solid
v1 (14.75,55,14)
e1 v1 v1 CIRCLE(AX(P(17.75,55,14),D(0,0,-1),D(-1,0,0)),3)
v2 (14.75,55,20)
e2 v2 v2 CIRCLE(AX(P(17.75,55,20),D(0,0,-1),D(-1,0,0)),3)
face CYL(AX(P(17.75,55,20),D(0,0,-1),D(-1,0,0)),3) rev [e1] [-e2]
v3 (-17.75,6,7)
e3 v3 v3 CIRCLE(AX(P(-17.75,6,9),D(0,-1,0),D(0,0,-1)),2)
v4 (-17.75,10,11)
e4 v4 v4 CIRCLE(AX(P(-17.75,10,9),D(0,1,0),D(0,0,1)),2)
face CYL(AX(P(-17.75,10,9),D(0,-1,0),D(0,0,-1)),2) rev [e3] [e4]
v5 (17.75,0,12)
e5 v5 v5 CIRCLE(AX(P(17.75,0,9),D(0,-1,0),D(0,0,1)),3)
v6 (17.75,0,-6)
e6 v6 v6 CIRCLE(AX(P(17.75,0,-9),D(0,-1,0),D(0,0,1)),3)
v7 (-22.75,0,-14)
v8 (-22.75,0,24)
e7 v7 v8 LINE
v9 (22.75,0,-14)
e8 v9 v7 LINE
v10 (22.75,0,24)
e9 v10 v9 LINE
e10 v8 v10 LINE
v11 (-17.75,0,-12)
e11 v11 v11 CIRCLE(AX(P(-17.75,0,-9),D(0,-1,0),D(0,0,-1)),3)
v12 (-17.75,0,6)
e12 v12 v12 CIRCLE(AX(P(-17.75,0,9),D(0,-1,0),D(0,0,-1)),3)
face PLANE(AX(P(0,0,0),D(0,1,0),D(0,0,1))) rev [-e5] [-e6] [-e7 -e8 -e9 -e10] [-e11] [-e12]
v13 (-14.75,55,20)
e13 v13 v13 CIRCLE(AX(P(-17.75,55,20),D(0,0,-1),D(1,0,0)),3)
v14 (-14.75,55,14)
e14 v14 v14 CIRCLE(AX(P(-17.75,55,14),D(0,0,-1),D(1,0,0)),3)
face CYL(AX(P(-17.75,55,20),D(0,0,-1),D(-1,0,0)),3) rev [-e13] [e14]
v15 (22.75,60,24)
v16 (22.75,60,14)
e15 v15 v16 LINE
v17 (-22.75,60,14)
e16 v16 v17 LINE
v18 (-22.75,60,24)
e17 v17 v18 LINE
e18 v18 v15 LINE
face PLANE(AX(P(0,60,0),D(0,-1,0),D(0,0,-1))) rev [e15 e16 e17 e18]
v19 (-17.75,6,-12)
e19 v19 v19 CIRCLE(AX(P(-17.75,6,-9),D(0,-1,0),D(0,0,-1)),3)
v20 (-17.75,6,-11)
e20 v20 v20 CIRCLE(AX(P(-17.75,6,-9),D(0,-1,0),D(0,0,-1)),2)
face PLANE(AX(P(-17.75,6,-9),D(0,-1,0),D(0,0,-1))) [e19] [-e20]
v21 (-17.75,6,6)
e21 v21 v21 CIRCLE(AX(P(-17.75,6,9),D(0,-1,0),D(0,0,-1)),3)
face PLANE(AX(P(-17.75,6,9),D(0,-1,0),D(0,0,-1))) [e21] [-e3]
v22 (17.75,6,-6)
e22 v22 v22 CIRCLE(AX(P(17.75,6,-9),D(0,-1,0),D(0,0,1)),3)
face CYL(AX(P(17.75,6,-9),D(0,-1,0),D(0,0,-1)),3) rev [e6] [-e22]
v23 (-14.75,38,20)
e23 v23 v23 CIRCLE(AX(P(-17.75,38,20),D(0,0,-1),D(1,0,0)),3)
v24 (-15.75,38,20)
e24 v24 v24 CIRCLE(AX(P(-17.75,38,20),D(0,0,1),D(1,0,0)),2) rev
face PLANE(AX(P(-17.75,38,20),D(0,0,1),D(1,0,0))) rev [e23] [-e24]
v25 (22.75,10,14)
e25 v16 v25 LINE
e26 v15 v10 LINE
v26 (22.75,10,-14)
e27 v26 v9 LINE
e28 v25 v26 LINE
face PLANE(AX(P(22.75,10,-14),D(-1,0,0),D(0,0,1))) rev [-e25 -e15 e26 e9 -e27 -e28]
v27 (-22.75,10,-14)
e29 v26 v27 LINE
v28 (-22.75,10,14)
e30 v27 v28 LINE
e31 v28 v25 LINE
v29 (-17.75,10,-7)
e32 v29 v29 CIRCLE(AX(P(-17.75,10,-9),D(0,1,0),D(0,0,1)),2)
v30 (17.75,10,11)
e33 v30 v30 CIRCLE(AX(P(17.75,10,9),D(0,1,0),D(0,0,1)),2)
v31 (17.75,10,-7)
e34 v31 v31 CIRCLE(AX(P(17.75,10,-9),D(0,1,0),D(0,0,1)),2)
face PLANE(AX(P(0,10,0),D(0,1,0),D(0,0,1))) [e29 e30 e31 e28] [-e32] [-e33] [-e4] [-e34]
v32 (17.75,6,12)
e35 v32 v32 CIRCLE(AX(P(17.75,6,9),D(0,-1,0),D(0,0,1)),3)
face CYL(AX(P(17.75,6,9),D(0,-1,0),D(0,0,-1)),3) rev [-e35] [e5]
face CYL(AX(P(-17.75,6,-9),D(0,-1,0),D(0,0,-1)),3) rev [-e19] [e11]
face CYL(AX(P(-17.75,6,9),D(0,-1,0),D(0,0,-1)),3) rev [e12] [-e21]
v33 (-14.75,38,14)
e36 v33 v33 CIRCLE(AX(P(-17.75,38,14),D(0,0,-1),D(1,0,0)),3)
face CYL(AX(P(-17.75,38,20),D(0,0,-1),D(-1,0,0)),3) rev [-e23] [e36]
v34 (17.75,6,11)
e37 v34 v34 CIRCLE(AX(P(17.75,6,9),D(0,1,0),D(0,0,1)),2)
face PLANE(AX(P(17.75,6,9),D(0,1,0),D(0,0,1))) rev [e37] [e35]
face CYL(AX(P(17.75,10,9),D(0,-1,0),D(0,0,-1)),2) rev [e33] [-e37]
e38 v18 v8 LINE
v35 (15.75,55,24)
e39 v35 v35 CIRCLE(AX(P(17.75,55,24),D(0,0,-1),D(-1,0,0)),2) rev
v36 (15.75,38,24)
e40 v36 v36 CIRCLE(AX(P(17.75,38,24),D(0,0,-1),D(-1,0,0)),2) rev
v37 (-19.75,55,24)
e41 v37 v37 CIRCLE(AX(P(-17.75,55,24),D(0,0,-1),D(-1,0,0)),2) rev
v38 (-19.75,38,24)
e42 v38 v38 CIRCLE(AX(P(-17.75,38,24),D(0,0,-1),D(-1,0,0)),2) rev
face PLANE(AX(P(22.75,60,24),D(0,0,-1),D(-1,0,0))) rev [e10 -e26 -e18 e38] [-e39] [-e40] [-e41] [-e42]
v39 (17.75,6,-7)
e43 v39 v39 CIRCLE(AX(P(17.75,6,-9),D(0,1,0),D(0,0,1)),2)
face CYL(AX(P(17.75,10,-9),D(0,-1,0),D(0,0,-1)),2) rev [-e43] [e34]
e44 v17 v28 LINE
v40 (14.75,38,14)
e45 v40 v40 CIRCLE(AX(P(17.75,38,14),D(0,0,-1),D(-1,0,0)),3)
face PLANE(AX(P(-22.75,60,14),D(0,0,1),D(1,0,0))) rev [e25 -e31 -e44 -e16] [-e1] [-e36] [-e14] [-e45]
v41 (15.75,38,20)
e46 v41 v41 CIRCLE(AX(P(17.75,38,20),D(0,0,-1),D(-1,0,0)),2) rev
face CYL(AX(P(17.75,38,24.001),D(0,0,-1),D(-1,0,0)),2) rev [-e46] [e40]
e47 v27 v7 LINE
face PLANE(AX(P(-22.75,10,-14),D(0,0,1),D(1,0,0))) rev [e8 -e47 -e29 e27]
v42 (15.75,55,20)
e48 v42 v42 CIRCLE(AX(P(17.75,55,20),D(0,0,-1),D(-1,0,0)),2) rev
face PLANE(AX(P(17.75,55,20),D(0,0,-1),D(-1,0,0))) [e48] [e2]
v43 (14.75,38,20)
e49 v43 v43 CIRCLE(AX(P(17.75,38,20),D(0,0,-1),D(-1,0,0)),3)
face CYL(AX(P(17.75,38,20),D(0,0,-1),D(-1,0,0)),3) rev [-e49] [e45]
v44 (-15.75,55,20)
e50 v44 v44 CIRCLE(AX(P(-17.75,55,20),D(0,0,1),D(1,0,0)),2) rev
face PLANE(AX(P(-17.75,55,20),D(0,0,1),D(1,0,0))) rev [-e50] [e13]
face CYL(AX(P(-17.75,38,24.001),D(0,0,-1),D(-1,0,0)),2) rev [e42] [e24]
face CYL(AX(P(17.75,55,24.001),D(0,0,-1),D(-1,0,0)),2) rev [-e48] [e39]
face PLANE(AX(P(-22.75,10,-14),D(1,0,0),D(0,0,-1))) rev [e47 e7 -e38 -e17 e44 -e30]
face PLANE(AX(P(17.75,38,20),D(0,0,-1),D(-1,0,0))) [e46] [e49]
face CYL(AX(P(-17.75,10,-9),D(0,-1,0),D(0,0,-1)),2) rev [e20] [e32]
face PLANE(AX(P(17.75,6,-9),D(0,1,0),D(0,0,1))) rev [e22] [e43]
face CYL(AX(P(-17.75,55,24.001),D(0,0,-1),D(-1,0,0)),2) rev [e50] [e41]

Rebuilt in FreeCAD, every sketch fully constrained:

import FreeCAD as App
import Part
import Sketcher
from FreeCAD import Vector

doc = App.newDocument("Part")
body = doc.addObject("PartDesign::Body", "Body")

sketch1 = body.newObject("Sketcher::SketchObject", "Sketch")
sketch1.AttachmentSupport = (doc.getObject("XZ_Plane"), [""])
sketch1.MapMode = "FlatFace"
sketch1.addGeometry(Part.LineSegment(Vector(22.8, -14, 0), Vector(-22.8, -14, 0)), False)
sketch1.addGeometry(Part.LineSegment(Vector(-22.8, -14, 0), Vector(-22.8, 14, 0)), False)
sketch1.addGeometry(Part.LineSegment(Vector(-22.8, 14, 0), Vector(22.8, 14, 0)), False)
sketch1.addGeometry(Part.LineSegment(Vector(22.8, 14, 0), Vector(22.8, -14, 0)), False)
sketch1.addGeometry(Part.Circle(Vector(17.8, 9, 0), Vector(0, 0, 1), 2), False)
sketch1.addGeometry(Part.Circle(Vector(-17.8, 9, 0), Vector(0, 0, 1), 2), False)
sketch1.addGeometry(Part.Circle(Vector(17.8, -9, 0), Vector(0, 0, 1), 2), False)
sketch1.addGeometry(Part.Circle(Vector(-17.8, -9, 0), Vector(0, 0, 1), 2), False)
sketch1.addConstraint(Sketcher.Constraint("Coincident", 0, 2, 1, 1))
sketch1.addConstraint(Sketcher.Constraint("Coincident", 1, 2, 2, 1))
sketch1.addConstraint(Sketcher.Constraint("Coincident", 2, 2, 3, 1))
sketch1.addConstraint(Sketcher.Constraint("Coincident", 3, 2, 0, 1))
sketch1.addConstraint(Sketcher.Constraint("Horizontal", 0))
sketch1.addConstraint(Sketcher.Constraint("Vertical", 1))
sketch1.addConstraint(Sketcher.Constraint("Horizontal", 2))
sketch1.addConstraint(Sketcher.Constraint("Vertical", 3))
sketch1.addConstraint(Sketcher.Constraint("Equal", 4, 5))
sketch1.addConstraint(Sketcher.Constraint("Equal", 5, 6))
sketch1.addConstraint(Sketcher.Constraint("Equal", 6, 7))
sketch1.addConstraint(Sketcher.Constraint("Symmetric", 5, 3, 6, 3, -1, 1))
sketch1.addConstraint(Sketcher.Constraint("Symmetric", 4, 3, 7, 3, -1, 1))
sketch1.addConstraint(Sketcher.Constraint("Symmetric", 0, 2, 2, 2, -1, 1))
sketch1.addConstraint(Sketcher.Constraint("Symmetric", 4, 3, 5, 3, -2))
sketch1.addConstraint(Sketcher.Constraint("Diameter", 4, 4.0))
sketch1.addConstraint(Sketcher.Constraint("DistanceY", 1, 1, 1, 2, 28.0))
sketch1.addConstraint(Sketcher.Constraint("DistanceX", 0, 2, 0, 1, 45.5))
sketch1.addConstraint(Sketcher.Constraint("DistanceY", -1, 1, 4, 3, 9.0))
sketch1.addConstraint(Sketcher.Constraint("DistanceX", 0, 2, 7, 3, 5.0))
pad1 = body.newObject("PartDesign::Pad", "Pad")
pad1.Profile = sketch1
pad1.Length = 10
pad1.Reversed = True

sketch2 = body.newObject("Sketcher::SketchObject", "Sketch001")
sketch2.AttachmentSupport = (doc.getObject("XZ_Plane"), [""])
sketch2.MapMode = "FlatFace"
sketch2.addGeometry(Part.Circle(Vector(-17.8, 9, 0), Vector(0, 0, 1), 3), False)
sketch2.addGeometry(Part.Circle(Vector(-17.8, -9, 0), Vector(0, 0, 1), 3), False)
sketch2.addGeometry(Part.Circle(Vector(17.8, -9, 0), Vector(0, 0, 1), 3), False)
sketch2.addGeometry(Part.Circle(Vector(17.8, 9, 0), Vector(0, 0, 1), 3), False)
sketch2.addConstraint(Sketcher.Constraint("Equal", 0, 1))
sketch2.addConstraint(Sketcher.Constraint("Equal", 1, 2))
sketch2.addConstraint(Sketcher.Constraint("Equal", 2, 3))
sketch2.addConstraint(Sketcher.Constraint("Symmetric", 0, 3, 2, 3, -1, 1))
sketch2.addConstraint(Sketcher.Constraint("Symmetric", 1, 3, 3, 3, -1, 1))
sketch2.addConstraint(Sketcher.Constraint("Symmetric", 1, 3, 2, 3, -2))
sketch2.addConstraint(Sketcher.Constraint("Diameter", 0, 6.0))
sketch2.addConstraint(Sketcher.Constraint("DistanceY", -1, 1, 0, 3, 9.0))
sketch2.addConstraint(Sketcher.Constraint("DistanceX", 1, 3, 2, 3, 35.5))
pocket1 = body.newObject("PartDesign::Pocket", "Pocket")
pocket1.Profile = sketch2
pocket1.Length = 6

sketch3 = body.newObject("Sketcher::SketchObject", "Sketch002")
sketch3.AttachmentSupport = (doc.getObject("XZ_Plane"), [""])
sketch3.MapMode = "FlatFace"
sketch3.addGeometry(Part.LineSegment(Vector(-23, 14, 0), Vector(-23, 24, 0)), False)
sketch3.addGeometry(Part.LineSegment(Vector(-23, 24, 0), Vector(23, 24, 0)), False)
sketch3.addGeometry(Part.LineSegment(Vector(23, 24, 0), Vector(23, 14, 0)), False)
sketch3.addGeometry(Part.LineSegment(Vector(23, 14, 0), Vector(-23, 14, 0)), False)
sketch3.addConstraint(Sketcher.Constraint("Coincident", 0, 2, 1, 1))
sketch3.addConstraint(Sketcher.Constraint("Coincident", 1, 2, 2, 1))
sketch3.addConstraint(Sketcher.Constraint("Coincident", 2, 2, 3, 1))
sketch3.addConstraint(Sketcher.Constraint("Coincident", 3, 2, 0, 1))
sketch3.addConstraint(Sketcher.Constraint("Vertical", 0))
sketch3.addConstraint(Sketcher.Constraint("Horizontal", 1))
sketch3.addConstraint(Sketcher.Constraint("Vertical", 2))
sketch3.addConstraint(Sketcher.Constraint("Horizontal", 3))
sketch3.addConstraint(Sketcher.Constraint("DistanceY", 0, 1, 0, 2, 10.0))
sketch3.addConstraint(Sketcher.Constraint("DistanceX", 1, 1, 1, 2, 45.5))
sketch3.addConstraint(Sketcher.Constraint("DistanceY", -1, 1, 0, 2, 24.0))
sketch3.addConstraint(Sketcher.Constraint("DistanceX", 0, 2, -1, 1, 22.75))
pad2 = body.newObject("PartDesign::Pad", "Pad001")
pad2.Profile = sketch3
pad2.Length = 60
pad2.Reversed = True

sketch4 = body.newObject("Sketcher::SketchObject", "Sketch003")
sketch4.AttachmentSupport = (doc.getObject("XY_Plane"), [""])
sketch4.MapMode = "FlatFace"
sketch4.AttachmentOffset = App.Placement(Vector(0, 0, 14), App.Rotation())
sketch4.addGeometry(Part.Circle(Vector(17.8, 55, 0), Vector(0, 0, 1), 2), False)
sketch4.addConstraint(Sketcher.Constraint("Diameter", 0, 4.0))
sketch4.addConstraint(Sketcher.Constraint("DistanceY", -1, 1, 0, 3, 55.0))
sketch4.addConstraint(Sketcher.Constraint("DistanceX", -1, 1, 0, 3, 17.75))
pocket2 = body.newObject("PartDesign::Pocket", "Pocket001")
pocket2.Profile = sketch4
pocket2.Type = "UpToFirst"
pocket2.Reversed = True

sketch5 = body.newObject("Sketcher::SketchObject", "Sketch004")
sketch5.AttachmentSupport = (doc.getObject("XY_Plane"), [""])
sketch5.MapMode = "FlatFace"
sketch5.AttachmentOffset = App.Placement(Vector(0, 0, 14), App.Rotation())
sketch5.addGeometry(Part.Circle(Vector(17.8, 38, 0), Vector(0, 0, 1), 2), False)
sketch5.addConstraint(Sketcher.Constraint("Diameter", 0, 4.0))
sketch5.addConstraint(Sketcher.Constraint("DistanceY", -1, 1, 0, 3, 38.0))
sketch5.addConstraint(Sketcher.Constraint("DistanceX", -1, 1, 0, 3, 17.75))
pocket3 = body.newObject("PartDesign::Pocket", "Pocket002")
pocket3.Profile = sketch5
pocket3.Type = "UpToFirst"
pocket3.Reversed = True

sketch6 = body.newObject("Sketcher::SketchObject", "Sketch005")
sketch6.AttachmentSupport = (doc.getObject("XY_Plane"), [""])
sketch6.MapMode = "FlatFace"
sketch6.AttachmentOffset = App.Placement(Vector(0, 0, 14), App.Rotation())
sketch6.addGeometry(Part.Circle(Vector(-17.8, 55, 0), Vector(0, 0, 1), 2), False)
sketch6.addConstraint(Sketcher.Constraint("Diameter", 0, 4.0))
sketch6.addConstraint(Sketcher.Constraint("DistanceY", -1, 1, 0, 3, 55.0))
sketch6.addConstraint(Sketcher.Constraint("DistanceX", 0, 3, -1, 1, 17.75))
pocket4 = body.newObject("PartDesign::Pocket", "Pocket003")
pocket4.Profile = sketch6
pocket4.Type = "UpToFirst"
pocket4.Reversed = True

sketch7 = body.newObject("Sketcher::SketchObject", "Sketch006")
sketch7.AttachmentSupport = (doc.getObject("XY_Plane"), [""])
sketch7.MapMode = "FlatFace"
sketch7.AttachmentOffset = App.Placement(Vector(0, 0, 14), App.Rotation())
sketch7.addGeometry(Part.Circle(Vector(-17.8, 38, 0), Vector(0, 0, 1), 2), False)
sketch7.addConstraint(Sketcher.Constraint("Diameter", 0, 4.0))
sketch7.addConstraint(Sketcher.Constraint("DistanceY", -1, 1, 0, 3, 38.0))
sketch7.addConstraint(Sketcher.Constraint("DistanceX", 0, 3, -1, 1, 17.75))
pocket5 = body.newObject("PartDesign::Pocket", "Pocket004")
pocket5.Profile = sketch7
pocket5.Type = "UpToFirst"
pocket5.Reversed = True

sketch8 = body.newObject("Sketcher::SketchObject", "Sketch007")
sketch8.AttachmentSupport = (doc.getObject("XY_Plane"), [""])
sketch8.MapMode = "FlatFace"
sketch8.AttachmentOffset = App.Placement(Vector(0, 0, 14), App.Rotation())
sketch8.addGeometry(Part.Circle(Vector(17.8, 55, 0), Vector(0, 0, 1), 3), False)
sketch8.addGeometry(Part.Circle(Vector(17.8, 38, 0), Vector(0, 0, 1), 3), False)
sketch8.addGeometry(Part.Circle(Vector(-17.8, 38, 0), Vector(0, 0, 1), 3), False)
sketch8.addGeometry(Part.Circle(Vector(-17.8, 55, 0), Vector(0, 0, 1), 3), False)
sketch8.addConstraint(Sketcher.Constraint("Equal", 0, 1))
sketch8.addConstraint(Sketcher.Constraint("Equal", 1, 2))
sketch8.addConstraint(Sketcher.Constraint("Equal", 2, 3))
sketch8.addConstraint(Sketcher.Constraint("Symmetric", 1, 3, 2, 3, -2))
sketch8.addConstraint(Sketcher.Constraint("Symmetric", 0, 3, 3, 3, -2))
sketch8.addConstraint(Sketcher.Constraint("Vertical", 0, 3, 1, 3))
sketch8.addConstraint(Sketcher.Constraint("Diameter", 0, 6.0))
sketch8.addConstraint(Sketcher.Constraint("DistanceY", -1, 1, 0, 3, 55.0))
sketch8.addConstraint(Sketcher.Constraint("DistanceY", -1, 1, 1, 3, 38.0))
sketch8.addConstraint(Sketcher.Constraint("DistanceX", 2, 3, 1, 3, 35.5))
pocket6 = body.newObject("PartDesign::Pocket", "Pocket005")
pocket6.Profile = sketch8
pocket6.Length = 6
pocket6.Reversed = True

doc.recompute()
